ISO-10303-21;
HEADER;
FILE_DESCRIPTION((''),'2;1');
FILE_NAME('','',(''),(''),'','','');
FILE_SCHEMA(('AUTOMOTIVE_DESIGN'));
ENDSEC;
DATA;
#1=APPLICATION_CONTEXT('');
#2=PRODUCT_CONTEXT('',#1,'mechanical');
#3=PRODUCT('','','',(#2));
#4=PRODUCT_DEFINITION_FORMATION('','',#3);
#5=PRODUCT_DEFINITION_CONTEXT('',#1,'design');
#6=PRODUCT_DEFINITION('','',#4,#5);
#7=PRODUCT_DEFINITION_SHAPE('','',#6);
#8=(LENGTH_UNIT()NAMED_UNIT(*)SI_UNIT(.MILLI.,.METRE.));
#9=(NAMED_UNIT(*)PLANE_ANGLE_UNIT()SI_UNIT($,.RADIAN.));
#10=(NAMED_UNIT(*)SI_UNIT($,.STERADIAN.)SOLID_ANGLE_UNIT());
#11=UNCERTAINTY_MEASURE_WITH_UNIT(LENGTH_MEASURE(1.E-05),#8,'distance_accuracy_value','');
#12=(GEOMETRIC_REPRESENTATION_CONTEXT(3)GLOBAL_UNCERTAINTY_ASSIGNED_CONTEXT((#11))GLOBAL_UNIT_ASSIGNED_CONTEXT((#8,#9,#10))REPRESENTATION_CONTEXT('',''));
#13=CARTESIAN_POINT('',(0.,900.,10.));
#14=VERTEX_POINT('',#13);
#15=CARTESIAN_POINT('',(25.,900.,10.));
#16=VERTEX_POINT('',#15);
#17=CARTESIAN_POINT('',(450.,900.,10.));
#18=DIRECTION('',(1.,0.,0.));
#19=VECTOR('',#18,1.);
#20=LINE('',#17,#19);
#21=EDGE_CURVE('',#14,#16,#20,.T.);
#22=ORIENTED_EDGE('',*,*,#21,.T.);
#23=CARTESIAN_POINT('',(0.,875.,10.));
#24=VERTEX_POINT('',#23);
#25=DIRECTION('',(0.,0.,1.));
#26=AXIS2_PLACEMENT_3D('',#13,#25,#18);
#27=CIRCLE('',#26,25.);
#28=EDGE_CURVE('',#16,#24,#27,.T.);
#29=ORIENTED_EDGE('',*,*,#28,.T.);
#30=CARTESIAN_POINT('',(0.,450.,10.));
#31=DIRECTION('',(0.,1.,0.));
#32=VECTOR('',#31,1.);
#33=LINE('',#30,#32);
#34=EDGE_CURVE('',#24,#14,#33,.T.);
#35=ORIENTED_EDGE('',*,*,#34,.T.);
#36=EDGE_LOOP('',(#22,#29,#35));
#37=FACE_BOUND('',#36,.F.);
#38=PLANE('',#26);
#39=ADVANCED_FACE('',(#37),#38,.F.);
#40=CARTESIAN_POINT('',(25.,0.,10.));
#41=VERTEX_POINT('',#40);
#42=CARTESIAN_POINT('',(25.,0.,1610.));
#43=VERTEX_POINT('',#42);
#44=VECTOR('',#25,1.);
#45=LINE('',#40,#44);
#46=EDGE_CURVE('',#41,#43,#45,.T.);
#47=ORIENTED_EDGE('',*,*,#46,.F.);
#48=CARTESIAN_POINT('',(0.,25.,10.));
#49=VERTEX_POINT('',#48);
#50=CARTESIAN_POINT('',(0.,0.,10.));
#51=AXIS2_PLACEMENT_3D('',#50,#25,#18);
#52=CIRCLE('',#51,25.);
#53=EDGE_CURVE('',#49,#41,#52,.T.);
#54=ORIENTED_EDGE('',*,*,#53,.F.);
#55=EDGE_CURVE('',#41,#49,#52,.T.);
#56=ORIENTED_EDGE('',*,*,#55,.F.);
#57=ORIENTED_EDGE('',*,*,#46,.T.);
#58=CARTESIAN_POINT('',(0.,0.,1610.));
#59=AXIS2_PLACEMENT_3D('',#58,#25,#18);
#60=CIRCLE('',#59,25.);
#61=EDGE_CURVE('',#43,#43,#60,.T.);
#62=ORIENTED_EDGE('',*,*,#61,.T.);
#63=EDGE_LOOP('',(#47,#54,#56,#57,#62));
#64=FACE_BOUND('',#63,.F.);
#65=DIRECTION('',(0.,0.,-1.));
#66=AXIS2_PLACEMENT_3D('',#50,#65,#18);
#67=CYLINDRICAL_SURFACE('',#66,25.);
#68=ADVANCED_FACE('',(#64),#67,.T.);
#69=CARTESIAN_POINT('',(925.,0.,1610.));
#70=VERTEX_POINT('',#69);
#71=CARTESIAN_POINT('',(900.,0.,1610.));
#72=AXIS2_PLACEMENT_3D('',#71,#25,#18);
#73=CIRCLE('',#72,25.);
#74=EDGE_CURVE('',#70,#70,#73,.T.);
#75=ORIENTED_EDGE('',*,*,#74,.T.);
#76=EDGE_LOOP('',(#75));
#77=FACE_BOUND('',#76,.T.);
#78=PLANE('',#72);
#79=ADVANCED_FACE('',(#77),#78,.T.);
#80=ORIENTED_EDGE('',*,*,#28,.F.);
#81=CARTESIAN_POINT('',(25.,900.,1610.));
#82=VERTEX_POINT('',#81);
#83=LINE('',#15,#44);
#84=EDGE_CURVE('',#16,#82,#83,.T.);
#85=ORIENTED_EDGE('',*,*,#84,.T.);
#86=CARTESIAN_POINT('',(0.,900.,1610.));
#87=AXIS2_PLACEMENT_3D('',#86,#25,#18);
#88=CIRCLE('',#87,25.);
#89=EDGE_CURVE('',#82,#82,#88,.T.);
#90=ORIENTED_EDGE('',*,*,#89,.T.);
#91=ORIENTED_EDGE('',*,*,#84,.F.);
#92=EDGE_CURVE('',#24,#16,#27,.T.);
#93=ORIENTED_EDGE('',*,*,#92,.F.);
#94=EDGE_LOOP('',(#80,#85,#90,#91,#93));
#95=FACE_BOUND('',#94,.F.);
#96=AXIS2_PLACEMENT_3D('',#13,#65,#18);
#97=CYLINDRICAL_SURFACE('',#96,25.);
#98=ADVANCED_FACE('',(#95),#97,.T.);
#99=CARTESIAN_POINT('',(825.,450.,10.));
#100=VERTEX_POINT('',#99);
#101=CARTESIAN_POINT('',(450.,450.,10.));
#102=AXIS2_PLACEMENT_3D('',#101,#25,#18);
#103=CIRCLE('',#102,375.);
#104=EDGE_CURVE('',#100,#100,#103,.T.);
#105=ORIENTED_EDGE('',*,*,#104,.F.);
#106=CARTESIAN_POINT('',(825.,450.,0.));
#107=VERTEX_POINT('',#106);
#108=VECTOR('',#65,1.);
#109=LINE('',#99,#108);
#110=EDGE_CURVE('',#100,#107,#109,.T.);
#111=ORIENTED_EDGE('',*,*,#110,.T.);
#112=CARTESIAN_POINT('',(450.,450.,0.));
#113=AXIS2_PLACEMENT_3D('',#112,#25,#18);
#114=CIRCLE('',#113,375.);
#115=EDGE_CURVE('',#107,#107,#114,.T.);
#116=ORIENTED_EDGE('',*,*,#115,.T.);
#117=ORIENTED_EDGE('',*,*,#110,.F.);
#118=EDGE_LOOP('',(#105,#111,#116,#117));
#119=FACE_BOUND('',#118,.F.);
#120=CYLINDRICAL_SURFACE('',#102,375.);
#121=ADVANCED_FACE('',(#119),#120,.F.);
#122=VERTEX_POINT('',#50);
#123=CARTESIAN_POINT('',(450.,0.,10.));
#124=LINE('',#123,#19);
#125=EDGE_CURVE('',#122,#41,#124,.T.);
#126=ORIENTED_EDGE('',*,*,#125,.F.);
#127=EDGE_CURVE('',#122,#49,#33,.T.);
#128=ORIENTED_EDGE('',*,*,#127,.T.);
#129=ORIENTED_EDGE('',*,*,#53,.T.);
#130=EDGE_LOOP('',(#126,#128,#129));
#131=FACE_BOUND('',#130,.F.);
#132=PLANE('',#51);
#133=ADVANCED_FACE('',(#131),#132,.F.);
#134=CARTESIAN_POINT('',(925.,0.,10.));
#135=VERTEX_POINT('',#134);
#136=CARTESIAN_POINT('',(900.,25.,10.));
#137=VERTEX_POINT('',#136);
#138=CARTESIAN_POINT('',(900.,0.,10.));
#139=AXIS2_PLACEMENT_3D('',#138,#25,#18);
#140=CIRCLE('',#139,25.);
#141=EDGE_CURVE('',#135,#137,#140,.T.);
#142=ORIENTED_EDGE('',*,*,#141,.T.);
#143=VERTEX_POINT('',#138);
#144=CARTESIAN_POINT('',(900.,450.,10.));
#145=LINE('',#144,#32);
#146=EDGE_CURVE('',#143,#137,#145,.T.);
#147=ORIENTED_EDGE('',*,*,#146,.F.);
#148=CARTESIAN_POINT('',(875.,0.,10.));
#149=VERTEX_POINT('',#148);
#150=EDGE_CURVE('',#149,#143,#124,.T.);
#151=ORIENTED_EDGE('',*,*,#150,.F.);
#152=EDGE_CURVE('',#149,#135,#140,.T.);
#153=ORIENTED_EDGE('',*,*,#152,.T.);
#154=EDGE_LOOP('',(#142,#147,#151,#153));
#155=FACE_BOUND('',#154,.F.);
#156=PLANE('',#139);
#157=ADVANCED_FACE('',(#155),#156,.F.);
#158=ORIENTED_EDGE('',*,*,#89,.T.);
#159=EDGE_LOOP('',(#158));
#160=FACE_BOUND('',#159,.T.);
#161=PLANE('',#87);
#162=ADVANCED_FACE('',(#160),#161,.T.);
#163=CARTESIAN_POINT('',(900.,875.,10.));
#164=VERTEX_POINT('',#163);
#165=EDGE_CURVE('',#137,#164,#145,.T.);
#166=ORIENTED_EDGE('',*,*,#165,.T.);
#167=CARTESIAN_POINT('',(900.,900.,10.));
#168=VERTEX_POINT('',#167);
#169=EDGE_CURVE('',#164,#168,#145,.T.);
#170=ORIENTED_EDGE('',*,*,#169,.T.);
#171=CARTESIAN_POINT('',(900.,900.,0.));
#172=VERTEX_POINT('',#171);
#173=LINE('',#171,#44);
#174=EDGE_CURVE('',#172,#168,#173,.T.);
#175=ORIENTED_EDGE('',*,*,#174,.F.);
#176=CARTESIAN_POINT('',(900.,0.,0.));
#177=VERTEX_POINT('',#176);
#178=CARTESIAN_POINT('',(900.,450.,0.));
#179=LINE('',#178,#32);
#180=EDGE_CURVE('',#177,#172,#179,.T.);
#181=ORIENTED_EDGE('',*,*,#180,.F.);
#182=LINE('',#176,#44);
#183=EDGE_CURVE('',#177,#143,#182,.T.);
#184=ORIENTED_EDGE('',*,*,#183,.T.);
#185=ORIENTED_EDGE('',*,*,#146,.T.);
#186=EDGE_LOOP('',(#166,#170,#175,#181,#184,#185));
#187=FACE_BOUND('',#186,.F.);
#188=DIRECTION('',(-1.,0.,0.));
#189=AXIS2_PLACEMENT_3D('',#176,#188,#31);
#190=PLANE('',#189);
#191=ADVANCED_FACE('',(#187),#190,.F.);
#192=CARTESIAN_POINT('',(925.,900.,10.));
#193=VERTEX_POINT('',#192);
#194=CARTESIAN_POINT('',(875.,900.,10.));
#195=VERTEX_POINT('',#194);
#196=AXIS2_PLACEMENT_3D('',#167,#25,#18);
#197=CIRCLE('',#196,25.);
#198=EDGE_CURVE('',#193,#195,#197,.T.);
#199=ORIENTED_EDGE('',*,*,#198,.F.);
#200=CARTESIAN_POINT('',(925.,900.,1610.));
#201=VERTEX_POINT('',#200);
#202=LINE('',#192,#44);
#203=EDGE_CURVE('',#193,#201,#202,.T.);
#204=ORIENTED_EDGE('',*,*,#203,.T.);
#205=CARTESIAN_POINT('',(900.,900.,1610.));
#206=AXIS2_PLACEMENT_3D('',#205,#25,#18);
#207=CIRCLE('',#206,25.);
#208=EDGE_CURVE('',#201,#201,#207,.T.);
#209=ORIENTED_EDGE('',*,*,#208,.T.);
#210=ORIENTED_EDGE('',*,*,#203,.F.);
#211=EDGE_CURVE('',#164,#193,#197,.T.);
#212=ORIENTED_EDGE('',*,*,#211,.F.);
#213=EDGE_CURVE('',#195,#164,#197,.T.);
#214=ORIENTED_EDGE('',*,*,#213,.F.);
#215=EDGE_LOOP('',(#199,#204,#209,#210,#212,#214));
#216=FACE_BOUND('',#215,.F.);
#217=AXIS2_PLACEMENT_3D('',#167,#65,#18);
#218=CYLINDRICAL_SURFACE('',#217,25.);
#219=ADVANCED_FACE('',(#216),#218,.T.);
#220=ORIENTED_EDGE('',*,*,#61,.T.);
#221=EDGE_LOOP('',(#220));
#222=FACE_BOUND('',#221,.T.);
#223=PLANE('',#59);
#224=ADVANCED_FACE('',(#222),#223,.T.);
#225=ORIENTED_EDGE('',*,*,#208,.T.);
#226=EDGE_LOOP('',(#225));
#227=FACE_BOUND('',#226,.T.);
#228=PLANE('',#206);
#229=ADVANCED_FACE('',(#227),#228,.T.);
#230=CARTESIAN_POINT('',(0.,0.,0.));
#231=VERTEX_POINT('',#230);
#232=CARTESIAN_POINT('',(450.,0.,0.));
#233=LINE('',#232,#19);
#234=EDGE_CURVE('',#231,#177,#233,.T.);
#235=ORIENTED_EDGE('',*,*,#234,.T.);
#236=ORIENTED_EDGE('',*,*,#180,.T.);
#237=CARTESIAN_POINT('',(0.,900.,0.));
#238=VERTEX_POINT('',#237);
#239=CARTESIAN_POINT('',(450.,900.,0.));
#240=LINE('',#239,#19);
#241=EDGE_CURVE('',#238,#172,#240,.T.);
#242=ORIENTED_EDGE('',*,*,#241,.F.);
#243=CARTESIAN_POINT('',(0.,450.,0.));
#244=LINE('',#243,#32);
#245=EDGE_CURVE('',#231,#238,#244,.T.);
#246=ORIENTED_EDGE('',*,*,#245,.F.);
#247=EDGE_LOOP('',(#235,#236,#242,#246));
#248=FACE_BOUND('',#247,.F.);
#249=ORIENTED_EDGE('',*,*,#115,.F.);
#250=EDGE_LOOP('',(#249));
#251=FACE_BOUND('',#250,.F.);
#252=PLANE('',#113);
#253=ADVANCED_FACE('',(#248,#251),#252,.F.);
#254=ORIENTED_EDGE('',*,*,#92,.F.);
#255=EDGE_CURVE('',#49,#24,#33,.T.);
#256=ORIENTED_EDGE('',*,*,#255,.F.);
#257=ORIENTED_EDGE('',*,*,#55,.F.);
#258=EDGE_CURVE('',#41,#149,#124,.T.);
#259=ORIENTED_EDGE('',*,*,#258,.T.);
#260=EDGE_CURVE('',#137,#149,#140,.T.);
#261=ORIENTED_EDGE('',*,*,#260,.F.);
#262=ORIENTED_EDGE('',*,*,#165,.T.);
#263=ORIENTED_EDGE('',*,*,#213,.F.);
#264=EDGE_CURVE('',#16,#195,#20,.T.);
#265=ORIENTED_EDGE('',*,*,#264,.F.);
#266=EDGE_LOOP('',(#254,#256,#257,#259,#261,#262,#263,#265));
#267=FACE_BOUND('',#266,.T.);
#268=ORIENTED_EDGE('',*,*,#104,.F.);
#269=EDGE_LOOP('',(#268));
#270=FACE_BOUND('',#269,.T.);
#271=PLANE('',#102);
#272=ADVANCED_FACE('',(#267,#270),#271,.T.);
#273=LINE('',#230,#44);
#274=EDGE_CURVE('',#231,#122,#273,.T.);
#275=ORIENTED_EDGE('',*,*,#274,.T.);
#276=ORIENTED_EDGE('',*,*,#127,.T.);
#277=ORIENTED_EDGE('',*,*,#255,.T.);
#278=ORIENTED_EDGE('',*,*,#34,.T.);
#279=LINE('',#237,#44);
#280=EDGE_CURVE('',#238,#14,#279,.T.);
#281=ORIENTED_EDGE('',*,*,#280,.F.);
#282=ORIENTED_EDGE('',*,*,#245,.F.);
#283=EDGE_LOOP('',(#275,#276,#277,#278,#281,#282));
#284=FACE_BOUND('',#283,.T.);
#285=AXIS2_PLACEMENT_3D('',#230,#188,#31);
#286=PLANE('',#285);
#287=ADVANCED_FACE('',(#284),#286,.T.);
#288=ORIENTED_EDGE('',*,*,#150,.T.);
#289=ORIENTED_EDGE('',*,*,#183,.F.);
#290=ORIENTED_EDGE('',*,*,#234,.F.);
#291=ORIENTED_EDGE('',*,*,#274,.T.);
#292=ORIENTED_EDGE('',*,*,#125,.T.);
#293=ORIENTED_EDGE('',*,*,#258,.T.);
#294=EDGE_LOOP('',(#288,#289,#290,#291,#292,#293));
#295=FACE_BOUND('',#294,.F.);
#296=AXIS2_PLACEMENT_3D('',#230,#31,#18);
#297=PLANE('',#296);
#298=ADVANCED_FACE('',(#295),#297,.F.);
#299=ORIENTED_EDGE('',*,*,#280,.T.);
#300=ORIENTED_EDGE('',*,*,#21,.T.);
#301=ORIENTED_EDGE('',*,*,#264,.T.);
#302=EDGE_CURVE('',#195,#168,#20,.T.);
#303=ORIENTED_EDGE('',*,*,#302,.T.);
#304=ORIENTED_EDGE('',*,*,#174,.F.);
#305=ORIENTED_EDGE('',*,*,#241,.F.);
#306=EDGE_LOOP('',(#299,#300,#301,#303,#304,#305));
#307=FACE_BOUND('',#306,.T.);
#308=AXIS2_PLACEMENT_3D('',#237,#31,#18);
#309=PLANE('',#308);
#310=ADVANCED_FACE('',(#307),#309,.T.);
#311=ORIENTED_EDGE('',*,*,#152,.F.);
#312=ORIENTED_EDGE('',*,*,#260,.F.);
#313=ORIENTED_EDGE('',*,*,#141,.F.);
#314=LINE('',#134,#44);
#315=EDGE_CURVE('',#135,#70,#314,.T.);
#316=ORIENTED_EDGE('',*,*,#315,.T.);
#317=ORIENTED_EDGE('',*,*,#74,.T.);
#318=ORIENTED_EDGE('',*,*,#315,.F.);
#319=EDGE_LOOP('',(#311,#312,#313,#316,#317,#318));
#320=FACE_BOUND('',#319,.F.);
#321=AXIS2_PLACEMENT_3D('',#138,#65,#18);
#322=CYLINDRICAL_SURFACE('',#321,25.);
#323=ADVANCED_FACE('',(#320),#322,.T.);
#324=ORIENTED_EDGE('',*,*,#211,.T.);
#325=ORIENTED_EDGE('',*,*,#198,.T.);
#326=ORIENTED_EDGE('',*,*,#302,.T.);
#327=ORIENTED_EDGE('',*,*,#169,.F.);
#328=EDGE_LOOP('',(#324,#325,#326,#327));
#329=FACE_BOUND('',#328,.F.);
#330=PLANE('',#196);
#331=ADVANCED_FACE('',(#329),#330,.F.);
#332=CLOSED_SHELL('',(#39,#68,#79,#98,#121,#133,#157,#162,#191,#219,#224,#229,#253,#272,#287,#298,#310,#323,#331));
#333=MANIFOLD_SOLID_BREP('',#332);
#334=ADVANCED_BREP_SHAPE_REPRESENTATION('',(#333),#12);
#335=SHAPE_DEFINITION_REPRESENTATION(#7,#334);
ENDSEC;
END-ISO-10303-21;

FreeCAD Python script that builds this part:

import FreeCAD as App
import Part
import Sketcher
from FreeCAD import Vector
Q = App.Units.Quantity

doc = App.newDocument("Part")
body = doc.addObject("PartDesign::Body", "Body")

# Sketch on XY plane
sketch1 = body.newObject("Sketcher::SketchObject", "Sketch")
sketch1.AttachmentSupport = (doc.getObject("XY_Plane"), [""])
sketch1.MapMode = "FlatFace"
sketch1.addGeometry(Part.LineSegment(Vector(0, 900, 0), Vector(0, 0, 0)), False)
sketch1.addGeometry(Part.LineSegment(Vector(0, 0, 0), Vector(900, 0, 0)), False)
sketch1.addGeometry(Part.LineSegment(Vector(900, 0, 0), Vector(900, 900, 0)), False)
sketch1.addGeometry(Part.LineSegment(Vector(900, 900, 0), Vector(0, 900, 0)), False)
sketch1.addConstraint(Sketcher.Constraint("Coincident", 0, 2, 1, 1))
sketch1.addConstraint(Sketcher.Constraint("Coincident", 1, 2, 2, 1))
sketch1.addConstraint(Sketcher.Constraint("Coincident", 2, 2, 3, 1))
sketch1.addConstraint(Sketcher.Constraint("Coincident", 3, 2, 0, 1))
sketch1.addConstraint(Sketcher.Constraint("Vertical", 0))
sketch1.addConstraint(Sketcher.Constraint("Horizontal", 1))
sketch1.addConstraint(Sketcher.Constraint("Vertical", 2))
sketch1.addConstraint(Sketcher.Constraint("Horizontal", 3))
sketch1.addConstraint(Sketcher.Constraint("Coincident", 0, 2, -1, 1))
sketch1.addConstraint(Sketcher.Constraint("Equal", 3, 0))
sketch1.addConstraint(Sketcher.Constraint("DistanceX", 1, 1, 1, 2, Q("900 mm")))
pad1 = body.newObject("PartDesign::Pad", "Pad")
pad1.Profile = sketch1
pad1.Length = 10

# Sketch on XY plane
sketch2 = body.newObject("Sketcher::SketchObject", "Sketch001")
sketch2.AttachmentSupport = (doc.getObject("XY_Plane"), [""])
sketch2.MapMode = "FlatFace"
sketch2.AttachmentOffset = App.Placement(Vector(0, 0, 10), App.Rotation())
sketch2.addGeometry(Part.Circle(Vector(0, 0, 0), Vector(0, 0, 1), 25), False)
sketch2.addGeometry(Part.Circle(Vector(0, 900, 0), Vector(0, 0, 1), 25), False)
sketch2.addGeometry(Part.Circle(Vector(900, 900, 0), Vector(0, 0, 1), 25), False)
sketch2.addGeometry(Part.Circle(Vector(900, 0, 0), Vector(0, 0, 1), 25), False)
sketch2.addConstraint(Sketcher.Constraint("Coincident", 0, 3, -1, 1))
sketch2.addConstraint(Sketcher.Constraint("Equal", 0, 1))
sketch2.addConstraint(Sketcher.Constraint("Equal", 1, 2))
sketch2.addConstraint(Sketcher.Constraint("Equal", 2, 3))
sketch2.addConstraint(Sketcher.Constraint("PointOnObject", 1, 3, -2))
sketch2.addConstraint(Sketcher.Constraint("PointOnObject", 3, 3, -1))
sketch2.addConstraint(Sketcher.Constraint("Horizontal", 1, 3, 2, 3))
sketch2.addConstraint(Sketcher.Constraint("Vertical", 2, 3, 3, 3))
sketch2.addConstraint(Sketcher.Constraint("Diameter", 0, Q("50 mm")))
sketch2.addConstraint(Sketcher.Constraint("DistanceY", -1, 1, 1, 3, Q("900 mm")))
sketch2.addConstraint(Sketcher.Constraint("DistanceX", -1, 1, 2, 3, Q("900 mm")))
pad2 = body.newObject("PartDesign::Pad", "Pad001")
pad2.Profile = sketch2
pad2.Length = 1600

# Sketch on XY plane
sketch3 = body.newObject("Sketcher::SketchObject", "Sketch002")
sketch3.AttachmentSupport = (doc.getObject("XY_Plane"), [""])
sketch3.MapMode = "FlatFace"
sketch3.AttachmentOffset = App.Placement(Vector(0, 0, 10), App.Rotation())
sketch3.addGeometry(Part.Circle(Vector(450, 450, 0), Vector(0, 0, 1), 375), False)
sketch3.addConstraint(Sketcher.Constraint("Diameter", 0, Q("750 mm")))
sketch3.addConstraint(Sketcher.Constraint("DistanceX", -1, 1, 0, 3, Q("450 mm")))
sketch3.addConstraint(Sketcher.Constraint("DistanceY", -1, 1, 0, 3, Q("450 mm")))
pocket1 = body.newObject("PartDesign::Pocket", "Pocket")
pocket1.Profile = sketch3
pocket1.Type = "ThroughAll"

doc.recompute()
